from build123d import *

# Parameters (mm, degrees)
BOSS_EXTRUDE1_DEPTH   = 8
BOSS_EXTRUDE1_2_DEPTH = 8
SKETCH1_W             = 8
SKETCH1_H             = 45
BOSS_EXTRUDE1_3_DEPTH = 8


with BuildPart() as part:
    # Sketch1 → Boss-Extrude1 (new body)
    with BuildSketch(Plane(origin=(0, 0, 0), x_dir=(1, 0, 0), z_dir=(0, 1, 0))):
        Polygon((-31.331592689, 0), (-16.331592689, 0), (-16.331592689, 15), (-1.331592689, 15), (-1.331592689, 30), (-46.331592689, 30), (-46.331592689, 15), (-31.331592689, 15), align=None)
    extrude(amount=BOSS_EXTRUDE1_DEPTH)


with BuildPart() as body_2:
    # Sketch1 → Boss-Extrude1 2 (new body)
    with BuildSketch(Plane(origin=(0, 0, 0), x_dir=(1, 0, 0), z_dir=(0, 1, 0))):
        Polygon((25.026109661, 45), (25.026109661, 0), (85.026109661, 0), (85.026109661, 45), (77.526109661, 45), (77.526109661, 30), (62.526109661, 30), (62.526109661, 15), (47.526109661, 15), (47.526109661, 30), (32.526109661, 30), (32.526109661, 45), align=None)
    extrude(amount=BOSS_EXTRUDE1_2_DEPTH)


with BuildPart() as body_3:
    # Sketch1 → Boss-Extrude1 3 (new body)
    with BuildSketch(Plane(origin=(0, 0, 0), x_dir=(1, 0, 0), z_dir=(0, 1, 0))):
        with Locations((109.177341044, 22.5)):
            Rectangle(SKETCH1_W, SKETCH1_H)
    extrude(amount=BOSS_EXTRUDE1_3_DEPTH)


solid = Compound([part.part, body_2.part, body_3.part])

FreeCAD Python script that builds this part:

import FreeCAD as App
import Part
import Sketcher
Q = App.Units.Quantity

doc = App.newDocument("Part")
body = doc.addObject("PartDesign::Body", "Body")

# Sketch on XZ plane
sketch1 = body.newObject("Sketcher::SketchObject", "Sketch")
sketch1.AttachmentSupport = (doc.getObject("XZ_Plane"), [""])
sketch1.MapMode = "FlatFace"
sketch1.addGeometry([
    Part.LineSegment(App.Vector(-31, 0, 0), App.Vector(-16, 0, 0)),  # 0
    Part.LineSegment(App.Vector(-16, 0, 0), App.Vector(-16, -15, 0)),  # 1
    Part.LineSegment(App.Vector(-16, -15, 0), App.Vector(-1, -15, 0)),  # 2
    Part.LineSegment(App.Vector(-1, -15, 0), App.Vector(-1, -30, 0)),  # 3
    Part.LineSegment(App.Vector(-1, -30, 0), App.Vector(-46, -30, 0)),  # 4
    Part.LineSegment(App.Vector(-46, -30, 0), App.Vector(-46, -15, 0)),  # 5
    Part.LineSegment(App.Vector(-46, -15, 0), App.Vector(-31, -15, 0)),  # 6
    Part.LineSegment(App.Vector(-31, -15, 0), App.Vector(-31, 0, 0)),  # 7
], False)
sketch1.addConstraint([
    Sketcher.Constraint("Coincident", 0, 2, 1, 1),
    Sketcher.Constraint("Coincident", 1, 2, 2, 1),
    Sketcher.Constraint("Coincident", 2, 2, 3, 1),
    Sketcher.Constraint("Coincident", 3, 2, 4, 1),
    Sketcher.Constraint("Coincident", 4, 2, 5, 1),
    Sketcher.Constraint("Coincident", 5, 2, 6, 1),
    Sketcher.Constraint("Coincident", 6, 2, 7, 1),
    Sketcher.Constraint("Coincident", 7, 2, 0, 1),
    Sketcher.Constraint("Horizontal", 0),
    Sketcher.Constraint("Vertical", 1),
    Sketcher.Constraint("Horizontal", 2),
    Sketcher.Constraint("Vertical", 3),
    Sketcher.Constraint("Horizontal", 4),
    Sketcher.Constraint("Vertical", 5),
    Sketcher.Constraint("Horizontal", 6),
    Sketcher.Constraint("Vertical", 7),
    Sketcher.Constraint("PointOnObject", 0, 2, -1),
    Sketcher.Constraint("Horizontal", 2, 2, 5, 2),
    Sketcher.Constraint("Equal", 0, 2),
    Sketcher.Constraint("Equal", 2, 6),
    Sketcher.Constraint("Equal", 6, 1),
    Sketcher.Constraint("Equal", 1, 3),
    Sketcher.Constraint("DistanceX", 0, 1, 0, 2, Q("15 mm")),
    Sketcher.Constraint("DistanceX", 0, 2, -1, 1, Q("16.331593 mm")),
])
pad1 = body.newObject("PartDesign::Pad", "Pad")
pad1.Profile = sketch1
pad1.Length = 8
pad1.Reversed = True
body2 = doc.addObject("PartDesign::Body", "Body001")

# Sketch on XZ plane
sketch2 = body2.newObject("Sketcher::SketchObject", "Sketch001")
sketch2.AttachmentSupport = (doc.getObject("XZ_Plane001"), [""])
sketch2.MapMode = "FlatFace"
sketch2.addGeometry([
    Part.LineSegment(App.Vector(25, -45, 0), App.Vector(25, 0, 0)),  # 0
    Part.LineSegment(App.Vector(25, 0, 0), App.Vector(85, 0, 0)),  # 1
    Part.LineSegment(App.Vector(85, 0, 0), App.Vector(85, -45, 0)),  # 2
    Part.LineSegment(App.Vector(85, -45, 0), App.Vector(78, -45, 0)),  # 3
    Part.LineSegment(App.Vector(78, -45, 0), App.Vector(78, -30, 0)),  # 4
    Part.LineSegment(App.Vector(78, -30, 0), App.Vector(63, -30, 0)),  # 5
    Part.LineSegment(App.Vector(63, -30, 0), App.Vector(63, -15, 0)),  # 6
    Part.LineSegment(App.Vector(63, -15, 0), App.Vector(48, -15, 0)),  # 7
    Part.LineSegment(App.Vector(48, -15, 0), App.Vector(48, -30, 0)),  # 8
    Part.LineSegment(App.Vector(48, -30, 0), App.Vector(33, -30, 0)),  # 9
    Part.LineSegment(App.Vector(33, -30, 0), App.Vector(33, -45, 0)),  # 10
    Part.LineSegment(App.Vector(33, -45, 0), App.Vector(25, -45, 0)),  # 11
], False)
sketch2.addConstraint([
    Sketcher.Constraint("Coincident", 0, 2, 1, 1),
    Sketcher.Constraint("Coincident", 1, 2, 2, 1),
    Sketcher.Constraint("Coincident", 2, 2, 3, 1),
    Sketcher.Constraint("Coincident", 3, 2, 4, 1),
    Sketcher.Constraint("Coincident", 4, 2, 5, 1),
    Sketcher.Constraint("Coincident", 5, 2, 6, 1),
    Sketcher.Constraint("Coincident", 6, 2, 7, 1),
    Sketcher.Constraint("Coincident", 7, 2, 8, 1),
    Sketcher.Constraint("Coincident", 8, 2, 9, 1),
    Sketcher.Constraint("Coincident", 9, 2, 10, 1),
    Sketcher.Constraint("Coincident", 10, 2, 11, 1),
    Sketcher.Constraint("Coincident", 11, 2, 0, 1),
    Sketcher.Constraint("Vertical", 0),
    Sketcher.Constraint("Horizontal", 1),
    Sketcher.Constraint("Vertical", 2),
    Sketcher.Constraint("Horizontal", 3),
    Sketcher.Constraint("Vertical", 4),
    Sketcher.Constraint("Horizontal", 5),
    Sketcher.Constraint("Vertical", 6),
    Sketcher.Constraint("Horizontal", 7),
    Sketcher.Constraint("Vertical", 8),
    Sketcher.Constraint("Horizontal", 9),
    Sketcher.Constraint("Vertical", 10),
    Sketcher.Constraint("Horizontal", 11),
    Sketcher.Constraint("PointOnObject", 0, 2, -1),
    Sketcher.Constraint("Horizontal", 5, 2, 8, 2),
    Sketcher.Constraint("Horizontal", 3, 2, 10, 2),
    Sketcher.Constraint("Equal", 5, 7),
    Sketcher.Constraint("Equal", 7, 9),
    Sketcher.Constraint("Equal", 3, 11),
    Sketcher.Constraint("Equal", 9, 4),
    Sketcher.Constraint("Equal", 4, 6),
    Sketcher.Constraint("DistanceX", 1, 1, 1, 2, Q("60 mm")),
    Sketcher.Constraint("DistanceX", 5, 2, 5, 1, Q("15 mm")),
    Sketcher.Constraint("DistanceY", 0, 1, 0, 2, Q("45 mm")),
    Sketcher.Constraint("DistanceX", -1, 1, 0, 2, Q("25.02611 mm")),
])
pad2 = body2.newObject("PartDesign::Pad", "Pad001")
pad2.Profile = sketch2
pad2.Length = 8
pad2.Reversed = True
body3 = doc.addObject("PartDesign::Body", "Body002")

# Sketch on XZ plane
sketch3 = body3.newObject("Sketcher::SketchObject", "Sketch002")
sketch3.AttachmentSupport = (doc.getObject("XZ_Plane002"), [""])
sketch3.MapMode = "FlatFace"
sketch3.addGeometry([
    Part.LineSegment(App.Vector(105, -45, 0), App.Vector(105, 0, 0)),
    Part.LineSegment(App.Vector(105, 0, 0), App.Vector(113, 0, 0)),
    Part.LineSegment(App.Vector(113, 0, 0), App.Vector(113, -45, 0)),
    Part.LineSegment(App.Vector(113, -45, 0), App.Vector(105, -45, 0)),
], False)
sketch3.addConstraint([
    Sketcher.Constraint("Coincident", 0, 2, 1, 1),
    Sketcher.Constraint("Coincident", 1, 2, 2, 1),
    Sketcher.Constraint("Coincident", 2, 2, 3, 1),
    Sketcher.Constraint("Coincident", 3, 2, 0, 1),
    Sketcher.Constraint("Vertical", 0),
    Sketcher.Constraint("Horizontal", 1),
    Sketcher.Constraint("Vertical", 2),
    Sketcher.Constraint("Horizontal", 3),
    Sketcher.Constraint("PointOnObject", 0, 2, -1),
    Sketcher.Constraint("DistanceX", 1, 1, 1, 2, Q("8 mm")),
    Sketcher.Constraint("DistanceY", 0, 1, 0, 2, Q("45 mm")),
    Sketcher.Constraint("DistanceX", -1, 1, 0, 2, Q("105.177341 mm")),
])
pad3 = body3.newObject("PartDesign::Pad", "Pad002")
pad3.Profile = sketch3
pad3.Length = 8
pad3.Reversed = True

doc.recompute()
